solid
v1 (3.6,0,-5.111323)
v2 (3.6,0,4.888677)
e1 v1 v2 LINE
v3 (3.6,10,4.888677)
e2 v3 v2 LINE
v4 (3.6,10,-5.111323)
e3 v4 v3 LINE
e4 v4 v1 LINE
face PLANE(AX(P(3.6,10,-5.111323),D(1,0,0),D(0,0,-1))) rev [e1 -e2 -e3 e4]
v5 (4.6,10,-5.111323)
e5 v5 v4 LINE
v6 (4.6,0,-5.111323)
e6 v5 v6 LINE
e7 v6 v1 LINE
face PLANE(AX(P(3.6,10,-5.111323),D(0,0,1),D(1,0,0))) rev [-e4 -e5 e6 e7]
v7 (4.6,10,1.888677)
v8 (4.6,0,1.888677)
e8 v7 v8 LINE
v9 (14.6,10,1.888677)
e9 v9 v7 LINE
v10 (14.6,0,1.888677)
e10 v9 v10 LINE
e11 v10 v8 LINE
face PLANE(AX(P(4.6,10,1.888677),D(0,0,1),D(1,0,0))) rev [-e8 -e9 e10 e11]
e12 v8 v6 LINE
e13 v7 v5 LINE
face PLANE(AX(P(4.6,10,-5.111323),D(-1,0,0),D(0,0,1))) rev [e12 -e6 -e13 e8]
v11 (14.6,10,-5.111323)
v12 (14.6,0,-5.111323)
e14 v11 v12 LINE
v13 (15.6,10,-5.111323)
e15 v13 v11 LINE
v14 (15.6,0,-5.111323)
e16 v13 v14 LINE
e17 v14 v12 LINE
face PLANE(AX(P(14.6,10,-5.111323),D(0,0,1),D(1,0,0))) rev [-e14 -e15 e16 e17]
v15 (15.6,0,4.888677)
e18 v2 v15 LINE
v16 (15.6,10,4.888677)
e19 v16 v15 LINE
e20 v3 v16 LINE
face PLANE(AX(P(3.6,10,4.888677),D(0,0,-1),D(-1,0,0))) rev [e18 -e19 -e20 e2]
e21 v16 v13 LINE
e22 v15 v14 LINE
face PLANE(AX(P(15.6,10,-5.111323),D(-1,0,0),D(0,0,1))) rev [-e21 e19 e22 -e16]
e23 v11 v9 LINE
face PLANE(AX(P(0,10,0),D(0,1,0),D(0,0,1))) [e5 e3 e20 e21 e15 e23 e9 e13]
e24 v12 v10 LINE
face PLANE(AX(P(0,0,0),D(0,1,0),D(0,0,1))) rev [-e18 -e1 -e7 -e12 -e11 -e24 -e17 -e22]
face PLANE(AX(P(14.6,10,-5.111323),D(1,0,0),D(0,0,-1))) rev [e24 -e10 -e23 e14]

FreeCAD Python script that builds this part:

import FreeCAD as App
import Part
import Sketcher

V = App.Vector
Q = App.Units.Quantity


def add_polygon(sketch, points):
    """Adds a closed chain of lines whose ends are joined by coincident constraints."""
    first, n = sketch.GeometryCount, len(points)
    for a, b in zip(points, points[1:] + points[:1]):
        sketch.addGeometry(Part.LineSegment(App.Vector(*a, 0), App.Vector(*b, 0)), False)
    for i in range(n):
        sketch.addConstraint(Sketcher.Constraint("Coincident", first + i, 2, first + (i + 1) % n, 1))

doc = App.newDocument("Part")
body = doc.addObject("PartDesign::Body", "Body")

sketch1 = body.newObject("Sketcher::SketchObject", "Sketch")
sketch1.AttachmentSupport = (doc.getObject("XZ_Plane"), [""])
sketch1.MapMode = "FlatFace"
add_polygon(sketch1, [(15.6, -5.1), (14.6, -5.1), (14.6, 1.9), (4.6, 1.9), (4.6, -5.1), (3.6, -5.1), (3.6, 4.9), (15.6, 4.9)])
sketch1.addConstraint([
    Sketcher.Constraint("Horizontal", 0),
    Sketcher.Constraint("Vertical", 1),
    Sketcher.Constraint("Horizontal", 2),
    Sketcher.Constraint("Vertical", 3),
    Sketcher.Constraint("Horizontal", 4),
    Sketcher.Constraint("Vertical", 5),
    Sketcher.Constraint("Horizontal", 6),
    Sketcher.Constraint("Vertical", 7),
    Sketcher.Constraint("Horizontal", 0, 2, 3, 2),
    Sketcher.Constraint("Equal", 0, 4),
    Sketcher.Constraint("Equal", 2, 5),
    Sketcher.Constraint("DistanceX", 0, 2, 0, 1, Q("1 mm")),
    Sketcher.Constraint("DistanceX", 2, 2, 2, 1, Q("10 mm")),
    Sketcher.Constraint("DistanceY", 1, 1, 1, 2, Q("7 mm")),
    Sketcher.Constraint("DistanceX", -1, 1, 0, 2, Q("14.6 mm")),
    Sketcher.Constraint("DistanceY", 0, 2, -1, 1, Q("5.111323 mm")),
])
pad1 = body.newObject("PartDesign::Pad", "Pad")
pad1.Profile = sketch1
pad1.Length = 10
pad1.Reversed = True

doc.recompute()
